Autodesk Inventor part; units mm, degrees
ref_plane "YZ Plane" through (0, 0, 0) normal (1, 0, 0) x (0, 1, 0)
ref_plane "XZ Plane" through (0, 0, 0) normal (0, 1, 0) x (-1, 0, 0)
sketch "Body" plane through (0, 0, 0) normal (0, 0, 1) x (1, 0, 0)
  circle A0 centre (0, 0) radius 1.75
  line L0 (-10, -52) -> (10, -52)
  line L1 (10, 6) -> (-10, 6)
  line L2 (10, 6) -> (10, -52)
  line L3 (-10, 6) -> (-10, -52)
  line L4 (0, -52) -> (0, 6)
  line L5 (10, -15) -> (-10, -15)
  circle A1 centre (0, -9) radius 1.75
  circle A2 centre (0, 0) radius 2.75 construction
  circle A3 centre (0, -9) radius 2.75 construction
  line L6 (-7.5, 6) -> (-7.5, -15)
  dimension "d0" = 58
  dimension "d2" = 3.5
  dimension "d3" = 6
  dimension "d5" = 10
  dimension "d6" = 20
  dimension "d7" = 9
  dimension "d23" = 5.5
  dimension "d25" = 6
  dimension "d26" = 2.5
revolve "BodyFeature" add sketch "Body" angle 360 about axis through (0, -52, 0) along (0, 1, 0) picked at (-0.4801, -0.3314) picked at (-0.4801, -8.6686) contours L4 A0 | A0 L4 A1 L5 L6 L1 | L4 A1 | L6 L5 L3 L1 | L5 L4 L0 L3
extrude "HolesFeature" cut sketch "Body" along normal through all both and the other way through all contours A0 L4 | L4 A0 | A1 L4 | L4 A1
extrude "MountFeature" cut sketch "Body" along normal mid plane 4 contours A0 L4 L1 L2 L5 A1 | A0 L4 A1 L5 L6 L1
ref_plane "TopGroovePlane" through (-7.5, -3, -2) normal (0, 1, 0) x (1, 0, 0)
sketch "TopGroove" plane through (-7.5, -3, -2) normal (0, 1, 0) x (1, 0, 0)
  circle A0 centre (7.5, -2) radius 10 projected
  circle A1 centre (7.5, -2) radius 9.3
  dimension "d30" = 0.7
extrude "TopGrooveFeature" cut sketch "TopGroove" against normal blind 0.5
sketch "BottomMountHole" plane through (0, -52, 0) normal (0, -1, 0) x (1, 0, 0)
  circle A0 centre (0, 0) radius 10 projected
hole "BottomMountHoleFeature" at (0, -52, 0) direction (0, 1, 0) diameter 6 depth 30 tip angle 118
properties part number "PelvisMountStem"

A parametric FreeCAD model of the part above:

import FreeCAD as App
import Part
import Sketcher
from FreeCAD import Vector


def add_polygon(sketch, points):
    """Adds a closed chain of lines whose ends are joined by coincident constraints."""
    first, n = sketch.GeometryCount, len(points)
    for a, b in zip(points, points[1:] + points[:1]):
        sketch.addGeometry(Part.LineSegment(App.Vector(*a, 0), App.Vector(*b, 0)), False)
    for i in range(n):
        sketch.addConstraint(Sketcher.Constraint("Coincident", first + i, 2, first + (i + 1) % n, 1))

doc = App.newDocument("Part")
body = doc.addObject("PartDesign::Body", "Body")

# Sketch on XY plane
sketch1 = body.newObject("Sketcher::SketchObject", "Sketch")
sketch1.AttachmentSupport = (doc.getObject("XY_Plane"), [""])
sketch1.MapMode = "FlatFace"
add_polygon(sketch1, [(0, 6), (-10, 6), (-10, -52), (0, -52)])  # lines 0-3
sketch1.addConstraint([
    Sketcher.Constraint("Horizontal", 0),
    Sketcher.Constraint("Vertical", 1),
    Sketcher.Constraint("Horizontal", 2),
    Sketcher.Constraint("Vertical", 3),
    Sketcher.Constraint("PointOnObject", 2, 2, -2),
    Sketcher.Constraint("DistanceX", 0, 2, 0, 1, 10.0),
    Sketcher.Constraint("DistanceY", 1, 2, 1, 1, 58.0),
    Sketcher.Constraint("DistanceY", -1, 1, 0, 2, 6.0),
])
revolution = body.newObject("PartDesign::Revolution", "Revolution")
revolution.Profile = sketch1
revolution.ReferenceAxis = (sketch1, ["V_Axis"])
revolution.Angle = 360

# Sketch on XY plane
sketch2 = body.newObject("Sketcher::SketchObject", "Sketch001")
sketch2.AttachmentSupport = (doc.getObject("XY_Plane"), [""])
sketch2.MapMode = "FlatFace"
sketch2.addGeometry([
    Part.Circle(Vector(0, 0, 0), Vector(0, 0, 1), 1.8),
    Part.Circle(Vector(0, -9, 0), Vector(0, 0, 1), 1.8),
], False)
sketch2.addConstraint([
    Sketcher.Constraint("Coincident", 0, 3, -1, 1),
    Sketcher.Constraint("Equal", 0, 1),
    Sketcher.Constraint("PointOnObject", 1, 3, -2),
    Sketcher.Constraint("Diameter", 0, 3.5),
    Sketcher.Constraint("DistanceY", 1, 3, -1, 1, 9.0),
])
pocket1 = body.newObject("PartDesign::Pocket", "Pocket")
pocket1.Profile = sketch2
pocket1.Type = "ThroughAll"
pocket1.Midplane = True

# Sketch on XY plane
sketch3 = body.newObject("Sketcher::SketchObject", "Sketch002")
sketch3.AttachmentSupport = (doc.getObject("XY_Plane"), [""])
sketch3.MapMode = "FlatFace"
add_polygon(sketch3, [(10, 6), (-7.5, 6), (-7.5, -15), (10, -15)])  # lines 0-3
sketch3.addGeometry(Part.Circle(Vector(0, 0, 0), Vector(0, 0, 1), 1.8), False)  # 4
sketch3.addGeometry(Part.Circle(Vector(0, -9, 0), Vector(0, 0, 1), 1.8), False)  # 5
sketch3.addConstraint([
    Sketcher.Constraint("Horizontal", 0),
    Sketcher.Constraint("Vertical", 1),
    Sketcher.Constraint("Horizontal", 2),
    Sketcher.Constraint("Vertical", 3),
    Sketcher.Constraint("Coincident", 4, 3, -1, 1),
    Sketcher.Constraint("Equal", 4, 5),
    Sketcher.Constraint("PointOnObject", 5, 3, -2),
    Sketcher.Constraint("Diameter", 4, 3.5),
    Sketcher.Constraint("DistanceY", 5, 3, -1, 1, 9.0),
    Sketcher.Constraint("DistanceY", -1, 1, 0, 2, 6.0),
    Sketcher.Constraint("DistanceX", -1, 1, 2, 2, 10.0),
    Sketcher.Constraint("DistanceY", 1, 2, 5, 3, 6.0),
    Sketcher.Constraint("DistanceX", 0, 2, 0, 1, 17.5),
])
pocket2 = body.newObject("PartDesign::Pocket", "Pocket001")
pocket2.Profile = sketch3
pocket2.Length = 4
pocket2.Midplane = True

# Sketch on XZ plane
sketch4 = body.newObject("Sketcher::SketchObject", "Sketch003")
sketch4.AttachmentSupport = (doc.getObject("XZ_Plane"), [""])
sketch4.MapMode = "FlatFace"
sketch4.AttachmentOffset = App.Placement(Vector(0, 0, 3), App.Rotation())
sketch4.addGeometry([
    Part.Circle(Vector(0, 0, 0), Vector(0, 0, 1), 10),
    Part.Circle(Vector(0, 0, 0), Vector(0, 0, 1), 9),
], False)
sketch4.addConstraint([
    Sketcher.Constraint("Coincident", 0, 3, -1, 1),
    Sketcher.Constraint("Coincident", 1, 3, -1, 1),
    Sketcher.Constraint("Diameter", 0, 20.0),
    Sketcher.Constraint("Diameter", 1, 18.6),
])
pocket3 = body.newObject("PartDesign::Pocket", "Pocket002")
pocket3.Profile = sketch4
pocket3.Length = 0.5
pocket3.Reversed = True

# Sketch on XZ plane
sketch5 = body.newObject("Sketcher::SketchObject", "Sketch004")
sketch5.AttachmentSupport = (doc.getObject("XZ_Plane"), [""])
sketch5.MapMode = "FlatFace"
sketch5.AttachmentOffset = App.Placement(Vector(0, 0, 52), App.Rotation())
sketch5.addGeometry(Part.Circle(Vector(0, 0, 0), Vector(0, 0, 1), 3), False)
sketch5.addConstraint([
    Sketcher.Constraint("Coincident", 0, 3, -1, 1),
    Sketcher.Constraint("Diameter", 0, 6.0),
])
doc.recompute()
hole = body.newObject("PartDesign::Hole", "Hole")
hole.Profile = sketch5
hole.ThreadType = "None"
hole.Diameter = 6
hole.DepthType = "Dimension"
hole.Depth = 30
hole.DrillPoint = "Angled"
hole.DrillPointAngle = 118

doc.recompute()
